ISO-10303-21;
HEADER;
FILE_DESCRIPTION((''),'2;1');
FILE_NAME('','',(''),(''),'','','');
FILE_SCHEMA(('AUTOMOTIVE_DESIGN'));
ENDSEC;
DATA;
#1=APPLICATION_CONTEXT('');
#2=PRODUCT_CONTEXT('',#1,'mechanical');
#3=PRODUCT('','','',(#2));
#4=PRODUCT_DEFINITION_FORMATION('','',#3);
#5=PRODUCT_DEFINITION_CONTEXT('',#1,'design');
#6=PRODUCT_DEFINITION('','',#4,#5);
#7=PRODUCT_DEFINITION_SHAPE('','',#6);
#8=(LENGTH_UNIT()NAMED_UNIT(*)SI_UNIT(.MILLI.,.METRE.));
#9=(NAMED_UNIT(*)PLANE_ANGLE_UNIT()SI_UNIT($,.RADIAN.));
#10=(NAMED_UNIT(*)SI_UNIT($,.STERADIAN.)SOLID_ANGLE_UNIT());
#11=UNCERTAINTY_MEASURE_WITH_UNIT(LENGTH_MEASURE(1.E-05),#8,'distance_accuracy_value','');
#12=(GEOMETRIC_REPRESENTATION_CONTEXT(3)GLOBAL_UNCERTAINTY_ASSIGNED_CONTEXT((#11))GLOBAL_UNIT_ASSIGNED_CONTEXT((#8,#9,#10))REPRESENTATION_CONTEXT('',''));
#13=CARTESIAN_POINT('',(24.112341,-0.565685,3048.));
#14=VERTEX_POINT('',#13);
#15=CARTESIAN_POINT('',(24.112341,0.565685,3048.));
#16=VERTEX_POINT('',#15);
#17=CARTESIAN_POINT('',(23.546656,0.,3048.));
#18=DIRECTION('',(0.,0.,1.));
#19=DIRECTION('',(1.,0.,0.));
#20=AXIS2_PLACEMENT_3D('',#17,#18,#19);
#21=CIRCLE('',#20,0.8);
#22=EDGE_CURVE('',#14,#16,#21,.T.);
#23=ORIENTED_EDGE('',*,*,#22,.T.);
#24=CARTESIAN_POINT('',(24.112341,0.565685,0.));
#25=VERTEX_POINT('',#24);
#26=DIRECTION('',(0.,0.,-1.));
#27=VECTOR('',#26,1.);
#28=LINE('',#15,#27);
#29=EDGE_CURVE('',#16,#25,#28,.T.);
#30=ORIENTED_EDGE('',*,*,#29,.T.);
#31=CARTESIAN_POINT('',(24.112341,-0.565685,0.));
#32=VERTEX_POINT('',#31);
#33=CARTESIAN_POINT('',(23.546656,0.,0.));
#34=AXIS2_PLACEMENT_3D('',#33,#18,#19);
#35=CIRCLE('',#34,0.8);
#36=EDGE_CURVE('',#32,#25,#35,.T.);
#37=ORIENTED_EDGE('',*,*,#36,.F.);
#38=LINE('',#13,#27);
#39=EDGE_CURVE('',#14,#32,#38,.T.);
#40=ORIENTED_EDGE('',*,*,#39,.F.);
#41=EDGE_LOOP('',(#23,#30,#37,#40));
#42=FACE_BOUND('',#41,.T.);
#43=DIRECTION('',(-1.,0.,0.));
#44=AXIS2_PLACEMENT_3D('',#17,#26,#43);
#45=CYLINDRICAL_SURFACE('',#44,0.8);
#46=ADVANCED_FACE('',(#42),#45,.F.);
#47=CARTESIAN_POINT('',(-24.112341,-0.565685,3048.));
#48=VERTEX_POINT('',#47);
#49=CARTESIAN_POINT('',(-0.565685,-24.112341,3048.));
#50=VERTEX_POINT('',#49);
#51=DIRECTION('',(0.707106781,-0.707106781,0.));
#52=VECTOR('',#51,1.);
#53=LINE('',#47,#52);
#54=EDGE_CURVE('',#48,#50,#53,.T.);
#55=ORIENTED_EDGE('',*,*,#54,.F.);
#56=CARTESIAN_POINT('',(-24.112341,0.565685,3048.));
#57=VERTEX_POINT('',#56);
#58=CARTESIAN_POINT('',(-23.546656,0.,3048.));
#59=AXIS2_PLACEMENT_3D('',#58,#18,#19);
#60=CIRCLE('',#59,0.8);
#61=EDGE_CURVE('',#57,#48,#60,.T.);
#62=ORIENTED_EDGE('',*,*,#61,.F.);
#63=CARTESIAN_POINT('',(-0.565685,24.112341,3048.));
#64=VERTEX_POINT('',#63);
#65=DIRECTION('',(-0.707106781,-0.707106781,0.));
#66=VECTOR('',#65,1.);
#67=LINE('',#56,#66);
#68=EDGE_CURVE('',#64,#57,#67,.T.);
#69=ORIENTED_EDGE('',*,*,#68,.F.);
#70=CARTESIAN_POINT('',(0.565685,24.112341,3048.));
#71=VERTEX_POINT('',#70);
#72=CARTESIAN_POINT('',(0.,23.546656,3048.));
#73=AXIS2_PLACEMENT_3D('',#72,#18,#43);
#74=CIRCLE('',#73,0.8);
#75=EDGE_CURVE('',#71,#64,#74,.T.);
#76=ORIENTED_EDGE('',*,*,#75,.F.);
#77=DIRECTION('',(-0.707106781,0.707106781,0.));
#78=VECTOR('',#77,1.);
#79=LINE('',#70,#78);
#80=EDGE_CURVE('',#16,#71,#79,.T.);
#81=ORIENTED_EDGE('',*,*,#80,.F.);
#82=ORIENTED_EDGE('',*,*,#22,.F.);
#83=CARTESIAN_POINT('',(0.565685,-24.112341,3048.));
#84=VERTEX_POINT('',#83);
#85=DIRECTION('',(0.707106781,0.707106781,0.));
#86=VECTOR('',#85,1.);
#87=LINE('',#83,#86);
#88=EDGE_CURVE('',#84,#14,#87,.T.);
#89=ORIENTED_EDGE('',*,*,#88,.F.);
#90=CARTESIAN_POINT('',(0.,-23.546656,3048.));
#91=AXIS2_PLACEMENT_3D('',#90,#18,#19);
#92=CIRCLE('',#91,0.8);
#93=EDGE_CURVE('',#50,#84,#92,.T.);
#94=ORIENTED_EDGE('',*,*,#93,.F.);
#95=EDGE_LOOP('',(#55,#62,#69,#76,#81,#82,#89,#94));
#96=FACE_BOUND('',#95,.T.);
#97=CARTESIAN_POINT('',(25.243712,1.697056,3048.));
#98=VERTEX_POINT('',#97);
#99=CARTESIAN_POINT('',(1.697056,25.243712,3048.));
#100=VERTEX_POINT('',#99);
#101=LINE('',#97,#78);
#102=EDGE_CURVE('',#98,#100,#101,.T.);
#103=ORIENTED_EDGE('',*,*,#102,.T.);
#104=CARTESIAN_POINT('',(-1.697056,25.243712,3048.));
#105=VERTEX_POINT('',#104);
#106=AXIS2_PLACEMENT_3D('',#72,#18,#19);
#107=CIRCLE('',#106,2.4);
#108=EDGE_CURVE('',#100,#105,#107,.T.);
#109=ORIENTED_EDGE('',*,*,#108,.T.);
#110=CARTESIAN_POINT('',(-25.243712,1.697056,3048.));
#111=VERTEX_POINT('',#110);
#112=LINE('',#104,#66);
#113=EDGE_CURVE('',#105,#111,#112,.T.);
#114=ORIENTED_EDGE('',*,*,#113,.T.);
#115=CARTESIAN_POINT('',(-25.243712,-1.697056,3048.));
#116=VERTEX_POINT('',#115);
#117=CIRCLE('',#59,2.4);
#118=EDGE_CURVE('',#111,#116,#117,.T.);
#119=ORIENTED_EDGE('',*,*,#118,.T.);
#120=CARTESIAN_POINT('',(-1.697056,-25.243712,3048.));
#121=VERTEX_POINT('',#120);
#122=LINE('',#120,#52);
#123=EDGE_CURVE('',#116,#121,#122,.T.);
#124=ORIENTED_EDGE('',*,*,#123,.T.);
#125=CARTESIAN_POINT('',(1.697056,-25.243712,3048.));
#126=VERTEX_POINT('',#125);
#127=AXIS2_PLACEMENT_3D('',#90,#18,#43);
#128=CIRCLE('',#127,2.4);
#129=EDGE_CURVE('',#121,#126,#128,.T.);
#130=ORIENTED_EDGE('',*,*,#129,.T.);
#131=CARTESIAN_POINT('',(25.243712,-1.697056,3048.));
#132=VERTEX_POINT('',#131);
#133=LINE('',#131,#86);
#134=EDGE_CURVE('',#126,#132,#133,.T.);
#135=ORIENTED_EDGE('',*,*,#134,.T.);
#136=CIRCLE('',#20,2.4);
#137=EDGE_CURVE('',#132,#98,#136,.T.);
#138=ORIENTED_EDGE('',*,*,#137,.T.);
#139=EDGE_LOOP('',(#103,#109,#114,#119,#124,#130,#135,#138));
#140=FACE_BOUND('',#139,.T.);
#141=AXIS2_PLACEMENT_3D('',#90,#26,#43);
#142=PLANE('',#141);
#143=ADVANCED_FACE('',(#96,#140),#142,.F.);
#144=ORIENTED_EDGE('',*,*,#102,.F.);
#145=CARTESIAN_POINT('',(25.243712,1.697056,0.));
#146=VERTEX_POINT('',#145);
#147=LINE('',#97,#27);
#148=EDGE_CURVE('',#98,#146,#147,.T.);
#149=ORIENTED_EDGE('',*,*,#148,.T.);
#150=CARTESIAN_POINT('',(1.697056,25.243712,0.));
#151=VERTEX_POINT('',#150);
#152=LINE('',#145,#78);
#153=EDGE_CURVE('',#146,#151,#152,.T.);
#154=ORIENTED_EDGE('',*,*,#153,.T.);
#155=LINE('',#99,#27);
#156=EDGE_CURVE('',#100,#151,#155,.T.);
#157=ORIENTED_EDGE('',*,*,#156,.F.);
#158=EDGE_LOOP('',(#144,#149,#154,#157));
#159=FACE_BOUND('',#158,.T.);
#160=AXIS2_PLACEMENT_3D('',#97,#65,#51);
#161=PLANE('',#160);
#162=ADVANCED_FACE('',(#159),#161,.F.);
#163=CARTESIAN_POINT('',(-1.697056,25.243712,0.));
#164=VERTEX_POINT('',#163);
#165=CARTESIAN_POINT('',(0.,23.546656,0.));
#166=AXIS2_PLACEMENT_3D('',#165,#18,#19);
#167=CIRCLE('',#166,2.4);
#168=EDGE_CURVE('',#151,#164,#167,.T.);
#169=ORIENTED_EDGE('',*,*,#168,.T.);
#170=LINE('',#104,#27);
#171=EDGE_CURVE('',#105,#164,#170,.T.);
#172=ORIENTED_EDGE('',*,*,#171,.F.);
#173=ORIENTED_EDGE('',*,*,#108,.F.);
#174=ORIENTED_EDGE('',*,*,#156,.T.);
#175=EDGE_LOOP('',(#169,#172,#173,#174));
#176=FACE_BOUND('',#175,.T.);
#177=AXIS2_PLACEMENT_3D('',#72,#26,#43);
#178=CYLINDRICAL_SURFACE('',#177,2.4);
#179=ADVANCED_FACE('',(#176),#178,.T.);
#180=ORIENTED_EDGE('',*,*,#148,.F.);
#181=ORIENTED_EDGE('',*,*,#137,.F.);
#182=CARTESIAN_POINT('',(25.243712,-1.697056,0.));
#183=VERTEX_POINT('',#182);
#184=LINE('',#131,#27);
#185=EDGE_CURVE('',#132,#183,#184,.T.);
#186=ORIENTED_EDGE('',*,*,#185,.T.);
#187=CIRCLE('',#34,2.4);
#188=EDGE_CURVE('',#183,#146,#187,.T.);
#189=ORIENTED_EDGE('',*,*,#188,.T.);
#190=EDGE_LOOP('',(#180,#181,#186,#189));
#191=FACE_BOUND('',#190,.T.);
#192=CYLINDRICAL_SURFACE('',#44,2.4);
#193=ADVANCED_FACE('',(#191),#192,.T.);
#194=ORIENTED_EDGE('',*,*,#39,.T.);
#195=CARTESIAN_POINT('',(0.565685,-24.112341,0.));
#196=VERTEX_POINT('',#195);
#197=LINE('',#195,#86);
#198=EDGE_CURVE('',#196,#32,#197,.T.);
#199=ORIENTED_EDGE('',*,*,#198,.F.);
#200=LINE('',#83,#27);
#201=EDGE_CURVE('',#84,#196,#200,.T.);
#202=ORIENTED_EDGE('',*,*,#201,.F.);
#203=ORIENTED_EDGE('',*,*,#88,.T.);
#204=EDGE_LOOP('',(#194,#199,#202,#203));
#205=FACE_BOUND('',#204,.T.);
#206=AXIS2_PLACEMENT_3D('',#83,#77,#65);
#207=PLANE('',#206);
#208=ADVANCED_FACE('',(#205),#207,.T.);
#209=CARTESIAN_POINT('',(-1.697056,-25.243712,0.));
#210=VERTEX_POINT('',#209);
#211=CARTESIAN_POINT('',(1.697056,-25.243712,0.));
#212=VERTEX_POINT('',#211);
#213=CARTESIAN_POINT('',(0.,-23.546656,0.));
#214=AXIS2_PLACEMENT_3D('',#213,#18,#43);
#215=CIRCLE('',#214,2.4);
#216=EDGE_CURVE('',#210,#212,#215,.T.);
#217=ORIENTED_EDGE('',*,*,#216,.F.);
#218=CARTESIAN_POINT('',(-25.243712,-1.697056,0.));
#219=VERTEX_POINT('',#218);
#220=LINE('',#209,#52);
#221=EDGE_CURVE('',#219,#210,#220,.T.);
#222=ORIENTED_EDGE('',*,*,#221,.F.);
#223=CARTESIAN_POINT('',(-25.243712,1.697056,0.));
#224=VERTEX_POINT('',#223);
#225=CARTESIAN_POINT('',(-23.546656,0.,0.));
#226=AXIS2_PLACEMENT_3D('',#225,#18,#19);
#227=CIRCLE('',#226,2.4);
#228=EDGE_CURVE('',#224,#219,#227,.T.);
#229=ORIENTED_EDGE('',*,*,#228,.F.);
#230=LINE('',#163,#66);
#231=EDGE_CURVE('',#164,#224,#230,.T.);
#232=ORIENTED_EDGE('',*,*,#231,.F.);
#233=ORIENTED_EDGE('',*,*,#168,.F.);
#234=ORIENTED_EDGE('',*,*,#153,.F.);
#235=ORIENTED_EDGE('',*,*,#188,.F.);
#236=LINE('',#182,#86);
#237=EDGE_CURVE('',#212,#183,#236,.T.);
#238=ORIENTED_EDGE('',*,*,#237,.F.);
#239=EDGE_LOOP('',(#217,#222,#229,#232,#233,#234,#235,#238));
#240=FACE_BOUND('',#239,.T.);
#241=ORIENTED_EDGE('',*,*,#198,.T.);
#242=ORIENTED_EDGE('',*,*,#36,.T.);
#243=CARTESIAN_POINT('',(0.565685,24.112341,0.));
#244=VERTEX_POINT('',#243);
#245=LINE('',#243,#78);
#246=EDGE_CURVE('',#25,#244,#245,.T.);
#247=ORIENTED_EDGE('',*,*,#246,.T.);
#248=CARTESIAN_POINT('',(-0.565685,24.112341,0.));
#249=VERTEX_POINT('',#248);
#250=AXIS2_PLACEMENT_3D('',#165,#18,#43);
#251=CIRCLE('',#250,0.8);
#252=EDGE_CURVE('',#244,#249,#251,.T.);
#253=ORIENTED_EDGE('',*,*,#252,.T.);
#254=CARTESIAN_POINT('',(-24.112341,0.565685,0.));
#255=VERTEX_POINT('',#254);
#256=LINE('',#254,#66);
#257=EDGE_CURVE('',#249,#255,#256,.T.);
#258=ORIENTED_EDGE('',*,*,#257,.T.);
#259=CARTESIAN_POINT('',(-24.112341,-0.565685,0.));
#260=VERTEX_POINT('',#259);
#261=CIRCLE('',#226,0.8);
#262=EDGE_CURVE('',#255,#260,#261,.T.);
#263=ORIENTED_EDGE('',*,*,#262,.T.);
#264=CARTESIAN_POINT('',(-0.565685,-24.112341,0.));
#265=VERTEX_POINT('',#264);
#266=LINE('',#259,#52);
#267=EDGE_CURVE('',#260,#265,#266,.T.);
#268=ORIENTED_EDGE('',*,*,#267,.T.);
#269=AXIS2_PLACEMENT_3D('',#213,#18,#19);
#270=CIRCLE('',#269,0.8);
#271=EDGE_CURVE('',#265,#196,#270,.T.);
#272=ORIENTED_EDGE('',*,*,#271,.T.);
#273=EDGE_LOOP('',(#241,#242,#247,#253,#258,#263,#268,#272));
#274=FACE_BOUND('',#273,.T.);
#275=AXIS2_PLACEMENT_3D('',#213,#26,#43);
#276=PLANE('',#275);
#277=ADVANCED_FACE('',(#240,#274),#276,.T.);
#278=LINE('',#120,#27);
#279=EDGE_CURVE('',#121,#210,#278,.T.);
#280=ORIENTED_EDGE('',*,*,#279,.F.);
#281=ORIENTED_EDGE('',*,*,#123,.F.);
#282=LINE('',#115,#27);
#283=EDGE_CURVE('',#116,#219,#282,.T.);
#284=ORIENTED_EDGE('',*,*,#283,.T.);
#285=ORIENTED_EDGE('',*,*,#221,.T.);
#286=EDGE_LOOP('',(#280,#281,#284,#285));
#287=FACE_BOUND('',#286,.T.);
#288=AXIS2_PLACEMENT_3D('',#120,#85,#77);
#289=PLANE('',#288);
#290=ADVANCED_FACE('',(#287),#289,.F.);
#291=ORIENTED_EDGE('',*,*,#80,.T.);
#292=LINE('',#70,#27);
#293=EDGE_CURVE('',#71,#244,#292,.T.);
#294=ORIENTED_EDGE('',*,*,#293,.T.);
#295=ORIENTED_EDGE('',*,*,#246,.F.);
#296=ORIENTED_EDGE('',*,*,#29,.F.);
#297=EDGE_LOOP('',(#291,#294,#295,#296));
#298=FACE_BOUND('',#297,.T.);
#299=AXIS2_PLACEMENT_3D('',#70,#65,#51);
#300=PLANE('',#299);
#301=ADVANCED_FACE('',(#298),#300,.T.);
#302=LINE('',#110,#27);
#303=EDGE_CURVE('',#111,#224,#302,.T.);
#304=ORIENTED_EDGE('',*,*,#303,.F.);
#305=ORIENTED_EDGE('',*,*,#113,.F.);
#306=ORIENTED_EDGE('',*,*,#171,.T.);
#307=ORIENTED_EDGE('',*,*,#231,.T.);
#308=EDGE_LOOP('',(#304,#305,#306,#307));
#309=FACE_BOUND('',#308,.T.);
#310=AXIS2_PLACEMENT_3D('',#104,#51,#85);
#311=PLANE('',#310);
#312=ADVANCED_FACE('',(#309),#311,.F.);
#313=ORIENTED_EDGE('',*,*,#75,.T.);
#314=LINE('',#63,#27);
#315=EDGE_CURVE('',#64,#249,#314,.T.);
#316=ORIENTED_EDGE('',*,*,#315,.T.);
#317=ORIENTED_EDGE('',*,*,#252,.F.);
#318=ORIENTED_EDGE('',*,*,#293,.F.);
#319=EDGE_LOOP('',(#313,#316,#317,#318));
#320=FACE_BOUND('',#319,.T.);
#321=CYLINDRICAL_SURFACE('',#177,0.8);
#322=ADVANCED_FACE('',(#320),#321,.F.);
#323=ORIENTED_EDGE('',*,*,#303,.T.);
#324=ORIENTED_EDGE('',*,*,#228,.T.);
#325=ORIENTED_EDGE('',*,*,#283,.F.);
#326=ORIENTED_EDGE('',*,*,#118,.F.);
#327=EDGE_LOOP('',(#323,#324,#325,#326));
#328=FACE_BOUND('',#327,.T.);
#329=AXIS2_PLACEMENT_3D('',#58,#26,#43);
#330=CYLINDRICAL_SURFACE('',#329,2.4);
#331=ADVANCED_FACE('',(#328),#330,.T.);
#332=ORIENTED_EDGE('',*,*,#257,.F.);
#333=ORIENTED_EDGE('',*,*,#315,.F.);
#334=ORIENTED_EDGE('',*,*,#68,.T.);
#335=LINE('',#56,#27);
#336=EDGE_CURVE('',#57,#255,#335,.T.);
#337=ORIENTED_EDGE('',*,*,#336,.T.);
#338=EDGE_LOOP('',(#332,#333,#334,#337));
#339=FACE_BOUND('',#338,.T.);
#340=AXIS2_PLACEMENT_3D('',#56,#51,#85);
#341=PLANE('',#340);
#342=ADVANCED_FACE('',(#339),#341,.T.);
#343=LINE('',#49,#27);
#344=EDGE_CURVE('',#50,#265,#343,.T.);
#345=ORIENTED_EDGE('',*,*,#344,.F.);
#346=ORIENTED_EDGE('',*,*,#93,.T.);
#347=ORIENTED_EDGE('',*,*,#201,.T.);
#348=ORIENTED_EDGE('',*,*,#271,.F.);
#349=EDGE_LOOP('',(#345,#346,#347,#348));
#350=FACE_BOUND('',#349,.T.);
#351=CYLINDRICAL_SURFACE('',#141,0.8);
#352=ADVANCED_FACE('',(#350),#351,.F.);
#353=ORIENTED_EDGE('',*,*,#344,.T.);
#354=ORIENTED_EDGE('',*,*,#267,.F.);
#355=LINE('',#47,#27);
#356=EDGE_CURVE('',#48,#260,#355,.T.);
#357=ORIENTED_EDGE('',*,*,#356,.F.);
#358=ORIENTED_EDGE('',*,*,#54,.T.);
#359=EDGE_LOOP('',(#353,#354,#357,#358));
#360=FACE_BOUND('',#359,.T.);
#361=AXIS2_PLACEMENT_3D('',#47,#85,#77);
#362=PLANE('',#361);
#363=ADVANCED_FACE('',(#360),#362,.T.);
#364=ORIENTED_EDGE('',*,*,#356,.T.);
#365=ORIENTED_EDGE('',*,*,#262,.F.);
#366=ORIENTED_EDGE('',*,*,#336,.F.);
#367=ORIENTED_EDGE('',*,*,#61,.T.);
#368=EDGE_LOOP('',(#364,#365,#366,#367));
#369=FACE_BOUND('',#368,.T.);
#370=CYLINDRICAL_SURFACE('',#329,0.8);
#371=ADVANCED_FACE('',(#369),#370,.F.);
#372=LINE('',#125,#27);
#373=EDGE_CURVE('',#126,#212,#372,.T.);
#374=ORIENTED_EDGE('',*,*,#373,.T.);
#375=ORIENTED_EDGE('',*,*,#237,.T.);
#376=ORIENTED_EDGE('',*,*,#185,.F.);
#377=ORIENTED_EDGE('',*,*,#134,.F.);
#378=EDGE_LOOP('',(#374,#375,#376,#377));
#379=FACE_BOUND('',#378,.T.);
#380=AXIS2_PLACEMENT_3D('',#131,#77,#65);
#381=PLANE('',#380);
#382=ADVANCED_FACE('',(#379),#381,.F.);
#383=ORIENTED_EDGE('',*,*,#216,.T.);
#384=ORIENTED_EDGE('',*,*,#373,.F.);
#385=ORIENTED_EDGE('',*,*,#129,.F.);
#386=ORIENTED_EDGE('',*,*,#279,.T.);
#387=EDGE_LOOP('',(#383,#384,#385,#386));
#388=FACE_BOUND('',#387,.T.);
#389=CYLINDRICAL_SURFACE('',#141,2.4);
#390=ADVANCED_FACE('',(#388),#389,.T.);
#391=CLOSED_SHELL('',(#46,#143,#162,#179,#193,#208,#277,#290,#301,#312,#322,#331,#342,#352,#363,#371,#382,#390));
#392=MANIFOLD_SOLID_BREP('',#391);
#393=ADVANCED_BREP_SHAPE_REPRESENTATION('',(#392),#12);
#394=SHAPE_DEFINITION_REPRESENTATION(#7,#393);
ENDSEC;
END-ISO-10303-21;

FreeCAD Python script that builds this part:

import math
import FreeCAD as App
import Part
import Sketcher

V = App.Vector

doc = App.newDocument("Part")
params = doc.addObject("Spreadsheet::Sheet", "Params")
for row, (alias, value) in enumerate([
    ("sketch1_radius", "2.4 mm"),
    ("sketch1_radius2", "0.8 mm"),
    ("sketch1_length", "33.3 mm"),
    ("pad1_length", "3048 mm"),
], start=1):
    params.set(f"A{row}", alias)
    params.set(f"B{row}", "=" + value)
    params.setAlias(f"B{row}", alias)

body = doc.addObject("PartDesign::Body", "Body")

# Sketch on XY plane
sketch1 = body.newObject("Sketcher::SketchObject", "Sketch")
sketch1.AttachmentSupport = (doc.getObject("XY_Plane"), [""])
sketch1.MapMode = "FlatFace"
sketch1.addGeometry([
    Part.LineSegment(V(1.697056, -25.243712, 0), V(25.243712, -1.697056, 0)),  # 0
    Part.ArcOfCircle(Part.Circle(V(23.546656, 0, 0), V(0, 0, 1), 2.4), math.radians(-45), math.radians(45)),  # 1
    Part.LineSegment(V(25.243712, 1.697056, 0), V(1.697056, 25.243712, 0)),  # 2
    Part.ArcOfCircle(Part.Circle(V(0, 23.546656, 0), V(0, 0, 1), 2.4), math.radians(45), math.radians(135)),  # 3
    Part.LineSegment(V(-1.697056, 25.243712, 0), V(-25.243712, 1.697056, 0)),  # 4
    Part.ArcOfCircle(Part.Circle(V(-23.546656, 0, 0), V(0, 0, 1), 2.4), math.radians(135), math.radians(225)),  # 5
    Part.LineSegment(V(-25.243712, -1.697056, 0), V(-1.697056, -25.243712, 0)),  # 6
    Part.ArcOfCircle(Part.Circle(V(0, -23.546656, 0), V(0, 0, 1), 2.4), math.radians(-135), math.radians(-45)),  # 7
    Part.LineSegment(V(-24.112341, 0.565685, 0), V(-0.565685, 24.112341, 0)),  # 8
    Part.ArcOfCircle(Part.Circle(V(0, 23.546656, 0), V(0, 0, 1), 0.8), math.radians(45), math.radians(135)),  # 9
    Part.LineSegment(V(0.565685, 24.112341, 0), V(24.112341, 0.565685, 0)),  # 10
    Part.ArcOfCircle(Part.Circle(V(23.546656, 0, 0), V(0, 0, 1), 0.8), math.radians(-45), math.radians(45)),  # 11
    Part.LineSegment(V(24.112341, -0.565685, 0), V(0.565685, -24.112341, 0)),  # 12
    Part.ArcOfCircle(Part.Circle(V(0, -23.546656, 0), V(0, 0, 1), 0.8), math.radians(-135), math.radians(-45)),  # 13
    Part.LineSegment(V(-0.565685, -24.112341, 0), V(-24.112341, -0.565685, 0)),  # 14
    Part.ArcOfCircle(Part.Circle(V(-23.546656, 0, 0), V(0, 0, 1), 0.8), math.radians(135), math.radians(225)),  # 15
], False)
sketch1.addConstraint([
    Sketcher.Constraint("Tangent", 0, 2, 1, 1),
    Sketcher.Constraint("Tangent", 1, 2, 2, 1),
    Sketcher.Constraint("Tangent", 2, 2, 3, 1),
    Sketcher.Constraint("Tangent", 3, 2, 4, 1),
    Sketcher.Constraint("Tangent", 4, 2, 5, 1),
    Sketcher.Constraint("Tangent", 5, 2, 6, 1),
    Sketcher.Constraint("Tangent", 6, 2, 7, 1),
    Sketcher.Constraint("Tangent", 7, 2, 0, 1),
    Sketcher.Constraint("Tangent", 8, 2, 9, 2),
    Sketcher.Constraint("Tangent", 9, 1, 10, 1),
    Sketcher.Constraint("Tangent", 10, 2, 11, 2),
    Sketcher.Constraint("Tangent", 11, 1, 12, 1),
    Sketcher.Constraint("Tangent", 12, 2, 13, 2),
    Sketcher.Constraint("Tangent", 13, 1, 14, 1),
    Sketcher.Constraint("Tangent", 14, 2, 15, 2),
    Sketcher.Constraint("Tangent", 15, 1, 8, 1),
    Sketcher.Constraint("Coincident", 9, 3, 3, 3),
    Sketcher.Constraint("Coincident", 11, 3, 1, 3),
    Sketcher.Constraint("Coincident", 13, 3, 7, 3),
    Sketcher.Constraint("Coincident", 15, 3, 5, 3),
    Sketcher.Constraint("Equal", 1, 3),
    Sketcher.Constraint("Equal", 3, 5),
    Sketcher.Constraint("Equal", 5, 7),
    Sketcher.Constraint("Equal", 9, 11),
    Sketcher.Constraint("Equal", 11, 13),
    Sketcher.Constraint("Equal", 13, 15),
    Sketcher.Constraint("Symmetric", 1, 3, 5, 3, -1, 1),
    Sketcher.Constraint("Symmetric", 3, 3, 7, 3, -1, 1),
    Sketcher.Constraint("Symmetric", 2, 2, 3, 2, -2),
    Sketcher.Constraint("Perpendicular", 0, 2),
    Sketcher.Constraint("Radius", 1, 2.4),
    Sketcher.Constraint("Radius", 9, 0.8),
    Sketcher.Constraint("Distance", 0, 33.3),
])
sketch1.setExpression("Constraints[30]", "Params.sketch1_radius")
sketch1.setExpression("Constraints[31]", "Params.sketch1_radius2")
sketch1.setExpression("Constraints[32]", "Params.sketch1_length")
pad1 = body.newObject("PartDesign::Pad", "Pad")
pad1.Profile = sketch1
pad1.setExpression("Length", "Params.pad1_length")

doc.recompute()
